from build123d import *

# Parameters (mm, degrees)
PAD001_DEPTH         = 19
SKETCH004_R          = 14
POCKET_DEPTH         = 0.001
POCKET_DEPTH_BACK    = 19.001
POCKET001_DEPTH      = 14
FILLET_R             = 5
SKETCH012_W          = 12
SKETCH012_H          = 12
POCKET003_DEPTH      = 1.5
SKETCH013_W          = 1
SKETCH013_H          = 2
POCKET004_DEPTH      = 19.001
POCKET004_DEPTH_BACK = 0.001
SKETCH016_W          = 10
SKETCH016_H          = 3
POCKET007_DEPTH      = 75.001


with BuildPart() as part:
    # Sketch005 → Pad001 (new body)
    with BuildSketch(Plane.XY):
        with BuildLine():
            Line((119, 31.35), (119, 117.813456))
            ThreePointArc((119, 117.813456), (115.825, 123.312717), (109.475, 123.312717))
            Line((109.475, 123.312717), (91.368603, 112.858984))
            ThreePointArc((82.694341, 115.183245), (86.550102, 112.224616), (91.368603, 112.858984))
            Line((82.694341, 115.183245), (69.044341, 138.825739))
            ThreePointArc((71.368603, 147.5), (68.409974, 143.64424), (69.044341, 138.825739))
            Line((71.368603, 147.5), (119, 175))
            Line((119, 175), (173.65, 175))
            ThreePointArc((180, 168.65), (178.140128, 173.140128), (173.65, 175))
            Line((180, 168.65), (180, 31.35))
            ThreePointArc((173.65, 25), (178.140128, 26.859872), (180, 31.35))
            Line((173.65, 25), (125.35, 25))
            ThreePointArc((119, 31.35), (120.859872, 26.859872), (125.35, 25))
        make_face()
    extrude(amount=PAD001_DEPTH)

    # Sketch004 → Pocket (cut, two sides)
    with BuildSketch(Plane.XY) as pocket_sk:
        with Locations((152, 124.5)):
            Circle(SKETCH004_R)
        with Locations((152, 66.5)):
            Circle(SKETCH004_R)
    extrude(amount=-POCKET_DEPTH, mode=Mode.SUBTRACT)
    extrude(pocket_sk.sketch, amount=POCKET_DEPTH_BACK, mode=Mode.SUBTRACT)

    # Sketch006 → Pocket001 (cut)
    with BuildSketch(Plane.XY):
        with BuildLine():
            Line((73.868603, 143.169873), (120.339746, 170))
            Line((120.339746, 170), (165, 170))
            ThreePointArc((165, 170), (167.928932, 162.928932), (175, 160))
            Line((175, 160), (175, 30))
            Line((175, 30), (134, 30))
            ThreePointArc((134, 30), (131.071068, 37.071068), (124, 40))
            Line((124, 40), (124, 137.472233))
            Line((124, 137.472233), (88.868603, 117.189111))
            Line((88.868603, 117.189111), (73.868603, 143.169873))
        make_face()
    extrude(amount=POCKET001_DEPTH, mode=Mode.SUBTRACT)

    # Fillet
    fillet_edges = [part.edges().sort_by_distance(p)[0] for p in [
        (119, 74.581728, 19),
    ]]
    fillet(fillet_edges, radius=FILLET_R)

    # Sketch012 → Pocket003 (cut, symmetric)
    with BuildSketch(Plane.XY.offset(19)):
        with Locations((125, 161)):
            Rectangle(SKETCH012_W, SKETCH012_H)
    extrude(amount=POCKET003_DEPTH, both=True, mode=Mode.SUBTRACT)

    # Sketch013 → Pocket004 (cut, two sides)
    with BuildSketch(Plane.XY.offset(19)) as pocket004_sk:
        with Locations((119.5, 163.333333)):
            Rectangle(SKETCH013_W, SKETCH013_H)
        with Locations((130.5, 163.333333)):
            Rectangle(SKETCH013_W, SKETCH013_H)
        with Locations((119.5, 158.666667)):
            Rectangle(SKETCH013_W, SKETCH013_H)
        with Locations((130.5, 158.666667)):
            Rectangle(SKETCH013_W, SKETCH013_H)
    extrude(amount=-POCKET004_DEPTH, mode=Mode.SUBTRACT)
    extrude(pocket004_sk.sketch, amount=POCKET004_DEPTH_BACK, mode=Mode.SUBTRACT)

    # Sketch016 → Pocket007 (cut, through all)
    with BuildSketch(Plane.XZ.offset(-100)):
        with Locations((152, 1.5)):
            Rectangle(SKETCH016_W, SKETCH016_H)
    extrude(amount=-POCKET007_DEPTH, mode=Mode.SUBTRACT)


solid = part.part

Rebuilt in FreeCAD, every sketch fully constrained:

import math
import FreeCAD as App
import Part
import Sketcher
from FreeCAD import Vector
Q = App.Units.Quantity


def edges_at(feature, points):
    """Names of the edges that pass closest to the given points."""
    edges = feature.Shape.Edges
    near = lambda p: min(range(len(edges)), key=lambda i: edges[i].distToShape(Part.Vertex(*p))[0])
    return sorted({f"Edge{near(p) + 1}" for p in points})


def add_polygon(sketch, points):
    """Adds a closed chain of lines whose ends are joined by coincident constraints."""
    first, n = sketch.GeometryCount, len(points)
    for a, b in zip(points, points[1:] + points[:1]):
        sketch.addGeometry(Part.LineSegment(App.Vector(*a, 0), App.Vector(*b, 0)), False)
    for i in range(n):
        sketch.addConstraint(Sketcher.Constraint("Coincident", first + i, 2, first + (i + 1) % n, 1))

doc = App.newDocument("Part")
body = doc.addObject("PartDesign::Body", "Body")

# Sketch on XY plane
sketch1 = body.newObject("Sketcher::SketchObject", "Sketch")
sketch1.AttachmentSupport = (doc.getObject("XY_Plane"), [""])
sketch1.MapMode = "FlatFace"
sketch1.addGeometry([
    Part.LineSegment(Vector(119, 117.813456, 0), Vector(119, 31.35, 0)),  # 0
    Part.ArcOfCircle(Part.Circle(Vector(125.35, 31.35, 0), Vector(0, 0, 1), 6.35), math.radians(-179.999998), math.radians(-90.000002)),  # 1
    Part.LineSegment(Vector(125.35, 25, 0), Vector(173.65, 25, 0)),  # 2
    Part.ArcOfCircle(Part.Circle(Vector(173.65, 31.35, 0), Vector(0, 0, 1), 6.35), math.radians(-89.999998), math.radians(-0.000002)),  # 3
    Part.LineSegment(Vector(180, 31.35, 0), Vector(180, 168.65, 0)),  # 4
    Part.ArcOfCircle(Part.Circle(Vector(173.65, 168.65, 0), Vector(0, 0, 1), 6.35), math.radians(0.000002), math.radians(89.999998)),  # 5
    Part.LineSegment(Vector(173.65, 175, 0), Vector(119, 175, 0)),  # 6
    Part.LineSegment(Vector(119, 175, 0), Vector(71.368603, 147.5, 0)),  # 7
    Part.ArcOfCircle(Part.Circle(Vector(74.543603, 142.000738, 0), Vector(0, 0, 1), 6.350001), math.radians(120.000001), math.radians(209.99999)),  # 8
    Part.LineSegment(Vector(69.044341, 138.825739, 0), Vector(82.694341, 115.183245, 0)),  # 9
    Part.ArcOfCircle(Part.Circle(Vector(88.193603, 118.358246, 0), Vector(0, 0, 1), 6.350001), math.radians(-149.999996), math.radians(-59.999998)),  # 10
    Part.LineSegment(Vector(91.368603, 112.858984, 0), Vector(109.475, 123.312717, 0)),  # 11
    Part.ArcOfCircle(Part.Circle(Vector(112.65, 117.813456, 0), Vector(0, 0, 1), 6.35), math.radians(0.000003), math.radians(120)),  # 12
], False)
sketch1.addConstraint([
    Sketcher.Constraint("Tangent", 0, 2, 1, 1),
    Sketcher.Constraint("Tangent", 1, 2, 2, 1),
    Sketcher.Constraint("Tangent", 2, 2, 3, 1),
    Sketcher.Constraint("Tangent", 3, 2, 4, 1),
    Sketcher.Constraint("Tangent", 4, 2, 5, 1),
    Sketcher.Constraint("Tangent", 5, 2, 6, 1),
    Sketcher.Constraint("Coincident", 6, 2, 7, 1),
    Sketcher.Constraint("Tangent", 7, 2, 8, 1),
    Sketcher.Constraint("Tangent", 8, 2, 9, 1),
    Sketcher.Constraint("Tangent", 9, 2, 10, 1),
    Sketcher.Constraint("Tangent", 10, 2, 11, 1),
    Sketcher.Constraint("Tangent", 11, 2, 12, 2),
    Sketcher.Constraint("Tangent", 12, 1, 0, 1),
    Sketcher.Constraint("Vertical", 0),
    Sketcher.Constraint("Horizontal", 2),
    Sketcher.Constraint("Vertical", 4),
    Sketcher.Constraint("Horizontal", 6),
    Sketcher.Constraint("Equal", 1, 3),
    Sketcher.Constraint("Equal", 3, 5),
    Sketcher.Constraint("Equal", 5, 8),
    Sketcher.Constraint("Equal", 8, 10),
    Sketcher.Constraint("Equal", 10, 12),
    Sketcher.Constraint("Perpendicular", 7, 9),
    Sketcher.Constraint("Perpendicular", 9, 11),
    Sketcher.Constraint("Vertical", 0, 2, 6, 2),
    Sketcher.Constraint("Angle", 7, Q("-150 deg")),
    Sketcher.Constraint("Radius", 1, 6.35),
    Sketcher.Constraint("Distance", 7, 55.0),
    Sketcher.Constraint("DistanceX", 2, 1, 2, 2, 48.3),
    Sketcher.Constraint("DistanceY", 4, 1, 4, 2, 137.3),
    Sketcher.Constraint("DistanceX", -1, 1, 0, 2, 119.0),
    Sketcher.Constraint("DistanceY", -1, 1, 1, 2, 25.0),
    Sketcher.Constraint("Distance", 9, 27.3),
])
pad1 = body.newObject("PartDesign::Pad", "Pad")
pad1.Profile = sketch1
pad1.Length = 19

# Sketch on XY plane
sketch2 = body.newObject("Sketcher::SketchObject", "Sketch001")
sketch2.AttachmentSupport = (doc.getObject("XY_Plane"), [""])
sketch2.MapMode = "FlatFace"
sketch2.addGeometry([
    Part.Circle(Vector(152, 124.5, 0), Vector(0, 0, 1), 14),
    Part.Circle(Vector(152, 66.5, 0), Vector(0, 0, 1), 14),
], False)
sketch2.addConstraint([
    Sketcher.Constraint("Equal", 0, 1),
    Sketcher.Constraint("Vertical", 0, 3, 1, 3),
    Sketcher.Constraint("Diameter", 0, 28.0),
    Sketcher.Constraint("DistanceX", -1, 1, 0, 3, 152.0),
    Sketcher.Constraint("DistanceY", 1, 3, 0, 3, 58.0),
    Sketcher.Constraint("DistanceY", -1, 1, 0, 3, 124.5),
])
pocket1 = body.newObject("PartDesign::Pocket", "Pocket")
pocket1.Profile = sketch2
pocket1.Type = "ThroughAll"
pocket1.Midplane = True

# Sketch on XY plane
sketch3 = body.newObject("Sketcher::SketchObject", "Sketch002")
sketch3.AttachmentSupport = (doc.getObject("XY_Plane"), [""])
sketch3.MapMode = "FlatFace"
sketch3.addGeometry([
    Part.LineSegment(Vector(120.339746, 170, 0), Vector(73.868603, 143.169873, 0)),  # 0
    Part.LineSegment(Vector(73.868603, 143.169873, 0), Vector(88.868603, 117.189111, 0)),  # 1
    Part.LineSegment(Vector(88.868603, 117.189111, 0), Vector(124, 137.472233, 0)),  # 2
    Part.LineSegment(Vector(124, 137.472233, 0), Vector(124, 40, 0)),  # 3
    Part.ArcOfCircle(Part.Circle(Vector(124.000001, 30.000001, 0), Vector(0, 0, 1), 9.999999), math.radians(-0.000004), math.radians(90.000004)),  # 4
    Part.LineSegment(Vector(134, 30, 0), Vector(175, 30, 0)),  # 5
    Part.LineSegment(Vector(175, 30, 0), Vector(175, 160, 0)),  # 6
    Part.ArcOfCircle(Part.Circle(Vector(174.999999, 169.999999, 0), Vector(0, 0, 1), 9.999999), math.radians(179.999996), math.radians(270.000004)),  # 7
    Part.LineSegment(Vector(165, 170, 0), Vector(120.339746, 170, 0)),  # 8
], False)
sketch3.addConstraint([
    Sketcher.Constraint("Coincident", 0, 2, 1, 1),
    Sketcher.Constraint("Coincident", 1, 2, 2, 1),
    Sketcher.Constraint("Coincident", 2, 2, 3, 1),
    Sketcher.Constraint("Coincident", 3, 2, 4, 2),
    Sketcher.Constraint("Coincident", 4, 1, 5, 1),
    Sketcher.Constraint("Coincident", 5, 2, 6, 1),
    Sketcher.Constraint("Coincident", 6, 2, 7, 2),
    Sketcher.Constraint("Coincident", 7, 1, 8, 1),
    Sketcher.Constraint("Coincident", 8, 2, 0, 1),
    Sketcher.Constraint("Vertical", 3),
    Sketcher.Constraint("Horizontal", 5),
    Sketcher.Constraint("Vertical", 6),
    Sketcher.Constraint("Horizontal", 8),
    Sketcher.Constraint("Equal", 4, 7),
    Sketcher.Constraint("Perpendicular", 0, 1),
    Sketcher.Constraint("Perpendicular", 1, 2),
    Sketcher.Constraint("Vertical", 4, 3, 2, 2),
    Sketcher.Constraint("Vertical", 7, 3, 5, 2),
    Sketcher.Constraint("Radius", 4, 9.999999),
    Sketcher.Constraint("DistanceX", 5, 1, 5, 2, 41.0),
    Sketcher.Constraint("DistanceY", 6, 1, 6, 2, 130.0),
    Sketcher.Constraint("Angle", 0, Q("-150 deg")),
    Sketcher.Constraint("Distance", 1, 30.0),
    Sketcher.Constraint("DistanceX", -1, 1, 4, 3, 124.000001),
    Sketcher.Constraint("DistanceY", -1, 1, 4, 3, 30.000001),
    Sketcher.Constraint("DistanceY", -1, 1, 7, 3, 169.999999),
    Sketcher.Constraint("DistanceY", -1, 1, 7, 1, 170.0),
    Sketcher.Constraint("DistanceX", 8, 2, 8, 1, 44.660254),
    Sketcher.Constraint("DistanceY", -1, 1, 1, 2, 117.189111),
])
pocket2 = body.newObject("PartDesign::Pocket", "Pocket001")
pocket2.Profile = sketch3
pocket2.Length = 14
pocket2.Reversed = True
doc.recompute()

fillet = body.newObject("PartDesign::Fillet", "Fillet")
fillet.Base = (pocket2, edges_at(pocket2, [(119, 74.582, 19)]))
fillet.Radius = 5

# Sketch on XY plane
sketch4 = body.newObject("Sketcher::SketchObject", "Sketch003")
sketch4.AttachmentSupport = (doc.getObject("XY_Plane"), [""])
sketch4.MapMode = "FlatFace"
sketch4.AttachmentOffset = App.Placement(Vector(0, 0, 19), App.Rotation())
add_polygon(sketch4, [(119, 167), (119, 155), (131, 155), (131, 167)])  # lines 0-3
sketch4.addConstraint([
    Sketcher.Constraint("Vertical", 0),
    Sketcher.Constraint("Horizontal", 1),
    Sketcher.Constraint("Vertical", 2),
    Sketcher.Constraint("Horizontal", 3),
    Sketcher.Constraint("Equal", 3, 0),
    Sketcher.Constraint("DistanceX", 1, 1, 1, 2, 12.0),
    Sketcher.Constraint("DistanceX", -1, 1, 0, 2, 119.0),
    Sketcher.Constraint("DistanceY", -1, 1, 0, 2, 155.0),
])
pocket3 = body.newObject("PartDesign::Pocket", "Pocket002")
pocket3.Profile = sketch4
pocket3.Length = 3
pocket3.Midplane = True

# Sketch on XY plane
sketch5 = body.newObject("Sketcher::SketchObject", "Sketch004")
sketch5.AttachmentSupport = (doc.getObject("XY_Plane"), [""])
sketch5.MapMode = "FlatFace"
sketch5.AttachmentOffset = App.Placement(Vector(0, 0, 19), App.Rotation())
add_polygon(sketch5, [(119, 164.333333), (119, 162.333333), (120, 162.333333), (120, 164.333333)])  # lines 0-3
add_polygon(sketch5, [(130, 164.333333), (130, 162.333333), (131, 162.333333), (131, 164.333333)])  # lines 4-7
add_polygon(sketch5, [(119, 159.666667), (119, 157.666667), (120, 157.666667), (120, 159.666667)])  # lines 8-11
add_polygon(sketch5, [(130, 159.666667), (130, 157.666667), (131, 157.666667), (131, 159.666667)])  # lines 12-15
sketch5.addConstraint([
    Sketcher.Constraint("Vertical", 0),
    Sketcher.Constraint("Horizontal", 1),
    Sketcher.Constraint("Vertical", 2),
    Sketcher.Constraint("Horizontal", 3),
    Sketcher.Constraint("Vertical", 4),
    Sketcher.Constraint("Horizontal", 5),
    Sketcher.Constraint("Vertical", 6),
    Sketcher.Constraint("Horizontal", 7),
    Sketcher.Constraint("Vertical", 8),
    Sketcher.Constraint("Horizontal", 9),
    Sketcher.Constraint("Vertical", 10),
    Sketcher.Constraint("Horizontal", 11),
    Sketcher.Constraint("Vertical", 12),
    Sketcher.Constraint("Horizontal", 13),
    Sketcher.Constraint("Vertical", 14),
    Sketcher.Constraint("Horizontal", 15),
    Sketcher.Constraint("Horizontal", 1, 2, 4, 2),
    Sketcher.Constraint("Horizontal", 3, 2, 6, 2),
    Sketcher.Constraint("Horizontal", 9, 2, 12, 2),
    Sketcher.Constraint("Horizontal", 11, 2, 14, 2),
    Sketcher.Constraint("Vertical", 3, 2, 8, 2),
    Sketcher.Constraint("Vertical", 2, 2, 9, 2),
    Sketcher.Constraint("Vertical", 7, 2, 12, 2),
    Sketcher.Constraint("Vertical", 6, 2, 13, 2),
    Sketcher.Constraint("Equal", 3, 5),
    Sketcher.Constraint("Equal", 6, 8),
    Sketcher.Constraint("DistanceX", 1, 1, 1, 2, 1.0),
    Sketcher.Constraint("DistanceY", 0, 2, 0, 1, 2.0),
    Sketcher.Constraint("DistanceX", -1, 1, 0, 2, 119.0),
    Sketcher.Constraint("DistanceX", -1, 1, 4, 2, 130.0),
    Sketcher.Constraint("DistanceY", -1, 1, 0, 2, 162.333333),
    Sketcher.Constraint("DistanceY", -1, 1, 8, 2, 157.666667),
])
pocket4 = body.newObject("PartDesign::Pocket", "Pocket003")
pocket4.Profile = sketch5
pocket4.Type = "ThroughAll"
pocket4.Midplane = True

# Sketch on XZ plane
sketch6 = body.newObject("Sketcher::SketchObject", "Sketch005")
sketch6.AttachmentSupport = (doc.getObject("XZ_Plane"), [""])
sketch6.MapMode = "FlatFace"
sketch6.AttachmentOffset = App.Placement(Vector(0, 0, -100), App.Rotation())
add_polygon(sketch6, [(147, 3), (147, 0), (157, 0), (157, 3)])  # lines 0-3
sketch6.addConstraint([
    Sketcher.Constraint("Vertical", 0),
    Sketcher.Constraint("Horizontal", 1),
    Sketcher.Constraint("Vertical", 2),
    Sketcher.Constraint("Horizontal", 3),
    Sketcher.Constraint("PointOnObject", 0, 2, -1),
    Sketcher.Constraint("DistanceX", 1, 1, 1, 2, 10.0),
    Sketcher.Constraint("DistanceY", 0, 2, 0, 1, 3.0),
    Sketcher.Constraint("DistanceX", -1, 1, 0, 2, 147.0),
])
pocket5 = body.newObject("PartDesign::Pocket", "Pocket004")
pocket5.Profile = sketch6
pocket5.Type = "ThroughAll"

doc.recompute()
